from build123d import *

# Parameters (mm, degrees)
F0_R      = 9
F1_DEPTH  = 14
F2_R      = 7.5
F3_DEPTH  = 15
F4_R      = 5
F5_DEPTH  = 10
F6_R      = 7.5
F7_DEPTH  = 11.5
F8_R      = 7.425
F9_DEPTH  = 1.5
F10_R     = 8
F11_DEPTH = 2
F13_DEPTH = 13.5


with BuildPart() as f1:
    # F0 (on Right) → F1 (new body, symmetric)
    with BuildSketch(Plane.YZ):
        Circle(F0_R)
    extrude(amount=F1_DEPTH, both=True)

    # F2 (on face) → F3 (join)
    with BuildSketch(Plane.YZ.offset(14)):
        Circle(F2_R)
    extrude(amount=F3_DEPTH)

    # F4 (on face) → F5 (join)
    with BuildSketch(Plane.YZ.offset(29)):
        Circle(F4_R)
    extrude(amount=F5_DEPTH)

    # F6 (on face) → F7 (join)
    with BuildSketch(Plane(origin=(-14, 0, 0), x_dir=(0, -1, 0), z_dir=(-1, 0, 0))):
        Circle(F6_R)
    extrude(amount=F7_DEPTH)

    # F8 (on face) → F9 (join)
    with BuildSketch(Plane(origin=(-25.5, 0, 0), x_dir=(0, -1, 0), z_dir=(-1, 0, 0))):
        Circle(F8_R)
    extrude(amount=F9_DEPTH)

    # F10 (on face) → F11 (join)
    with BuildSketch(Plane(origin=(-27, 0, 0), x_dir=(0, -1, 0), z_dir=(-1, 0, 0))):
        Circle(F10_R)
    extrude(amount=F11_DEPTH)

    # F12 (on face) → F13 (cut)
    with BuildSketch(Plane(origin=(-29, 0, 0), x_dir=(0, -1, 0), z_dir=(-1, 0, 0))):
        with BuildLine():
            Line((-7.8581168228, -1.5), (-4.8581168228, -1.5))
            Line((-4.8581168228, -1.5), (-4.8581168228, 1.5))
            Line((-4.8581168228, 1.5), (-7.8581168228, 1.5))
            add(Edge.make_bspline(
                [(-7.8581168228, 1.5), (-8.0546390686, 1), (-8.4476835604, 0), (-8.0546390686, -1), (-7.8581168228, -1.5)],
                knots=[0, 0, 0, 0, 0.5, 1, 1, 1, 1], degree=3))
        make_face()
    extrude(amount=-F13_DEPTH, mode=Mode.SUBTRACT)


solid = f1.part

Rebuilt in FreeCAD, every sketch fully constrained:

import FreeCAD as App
import Part
import Sketcher

V = App.Vector
Q = App.Units.Quantity

doc = App.newDocument("Part")
params = doc.addObject("Spreadsheet::Sheet", "Params")
for row, (alias, value) in enumerate([
    ("sketch1_diameter", "18 mm"),
    ("pad1_length", "28 mm"),
    ("sketch2_diameter", "15 mm"),
    ("pad2_length", "15 mm"),
    ("sketch3_diameter", "10 mm"),
    ("pad3_length", "10 mm"),
    ("sketch4_diameter", "15 mm"),
    ("pad4_length", "11.5 mm"),
    ("sketch5_diameter", "14.85 mm"),
    ("pad5_length", "1.5 mm"),
    ("sketch6_diameter", "16 mm"),
    ("pad6_length", "2 mm"),
    ("sketch7_width", "3 mm"),
    ("pocket1_length", "13.5 mm"),
], start=1):
    params.set(f"A{row}", alias)
    params.set(f"B{row}", "=" + value)
    params.setAlias(f"B{row}", alias)

body = doc.addObject("PartDesign::Body", "Body")

# Sketch on YZ plane
sketch1 = doc.addObject("Sketcher::SketchObject", "Sketch")
body.addObject(sketch1)
sketch1.AttachmentSupport = (doc.YZ_Plane, [""])
sketch1.MapMode = "FlatFace"
sketch1.addGeometry(Part.Circle(V(0, 0, 0), V(0, 0, 1), 9), False)
sketch1.addConstraint(Sketcher.Constraint("Coincident", 0, 3, -1, 1))
sketch1.addConstraint(Sketcher.Constraint("Diameter", 0, Q("18 mm")))
sketch1.setExpression("Constraints[1]", "Params.sketch1_diameter")
pad1 = doc.addObject("PartDesign::Pad", "Pad")
body.addObject(pad1)
pad1.Profile = sketch1
pad1.setExpression("Length", "Params.pad1_length")
pad1.Midplane = True

# Sketch on YZ plane
sketch2 = doc.addObject("Sketcher::SketchObject", "Sketch001")
body.addObject(sketch2)
sketch2.AttachmentSupport = (doc.YZ_Plane, [""])
sketch2.MapMode = "FlatFace"
sketch2.AttachmentOffset = App.Placement(V(0, 0, 14), App.Rotation())
sketch2.addGeometry(Part.Circle(V(0, 0, 0), V(0, 0, 1), 7.5), False)
sketch2.addConstraint(Sketcher.Constraint("Coincident", 0, 3, -1, 1))
sketch2.addConstraint(Sketcher.Constraint("Diameter", 0, Q("15 mm")))
sketch2.setExpression("Constraints[1]", "Params.sketch2_diameter")
pad2 = doc.addObject("PartDesign::Pad", "Pad001")
body.addObject(pad2)
pad2.Profile = sketch2
pad2.setExpression("Length", "Params.pad2_length")

# Sketch on YZ plane
sketch3 = doc.addObject("Sketcher::SketchObject", "Sketch002")
body.addObject(sketch3)
sketch3.AttachmentSupport = (doc.YZ_Plane, [""])
sketch3.MapMode = "FlatFace"
sketch3.AttachmentOffset = App.Placement(V(0, 0, 29), App.Rotation())
sketch3.addGeometry(Part.Circle(V(0, 0, 0), V(0, 0, 1), 5), False)
sketch3.addConstraint(Sketcher.Constraint("Coincident", 0, 3, -1, 1))
sketch3.addConstraint(Sketcher.Constraint("Diameter", 0, Q("10 mm")))
sketch3.setExpression("Constraints[1]", "Params.sketch3_diameter")
pad3 = doc.addObject("PartDesign::Pad", "Pad002")
body.addObject(pad3)
pad3.Profile = sketch3
pad3.setExpression("Length", "Params.pad3_length")

# Sketch on YZ plane
sketch4 = doc.addObject("Sketcher::SketchObject", "Sketch003")
body.addObject(sketch4)
sketch4.AttachmentSupport = (doc.YZ_Plane, [""])
sketch4.MapMode = "FlatFace"
sketch4.AttachmentOffset = App.Placement(V(0, 0, -14), App.Rotation())
sketch4.addGeometry(Part.Circle(V(0, 0, 0), V(0, 0, 1), 7.5), False)
sketch4.addConstraint(Sketcher.Constraint("Coincident", 0, 3, -1, 1))
sketch4.addConstraint(Sketcher.Constraint("Diameter", 0, Q("15 mm")))
sketch4.setExpression("Constraints[1]", "Params.sketch4_diameter")
pad4 = doc.addObject("PartDesign::Pad", "Pad003")
body.addObject(pad4)
pad4.Profile = sketch4
pad4.setExpression("Length", "Params.pad4_length")
pad4.Reversed = True

# Sketch on YZ plane
sketch5 = doc.addObject("Sketcher::SketchObject", "Sketch004")
body.addObject(sketch5)
sketch5.AttachmentSupport = (doc.YZ_Plane, [""])
sketch5.MapMode = "FlatFace"
sketch5.AttachmentOffset = App.Placement(V(0, 0, -25.5), App.Rotation())
sketch5.addGeometry(Part.Circle(V(0, 0, 0), V(0, 0, 1), 7.425), False)
sketch5.addConstraint(Sketcher.Constraint("Coincident", 0, 3, -1, 1))
sketch5.addConstraint(Sketcher.Constraint("Diameter", 0, Q("14.85 mm")))
sketch5.setExpression("Constraints[1]", "Params.sketch5_diameter")
pad5 = doc.addObject("PartDesign::Pad", "Pad004")
body.addObject(pad5)
pad5.Profile = sketch5
pad5.setExpression("Length", "Params.pad5_length")
pad5.Reversed = True

# Sketch on YZ plane
sketch6 = doc.addObject("Sketcher::SketchObject", "Sketch005")
body.addObject(sketch6)
sketch6.AttachmentSupport = (doc.YZ_Plane, [""])
sketch6.MapMode = "FlatFace"
sketch6.AttachmentOffset = App.Placement(V(0, 0, -27), App.Rotation())
sketch6.addGeometry(Part.Circle(V(0, 0, 0), V(0, 0, 1), 8), False)
sketch6.addConstraint(Sketcher.Constraint("Coincident", 0, 3, -1, 1))
sketch6.addConstraint(Sketcher.Constraint("Diameter", 0, Q("16 mm")))
sketch6.setExpression("Constraints[1]", "Params.sketch6_diameter")
pad6 = doc.addObject("PartDesign::Pad", "Pad005")
body.addObject(pad6)
pad6.Profile = sketch6
pad6.setExpression("Length", "Params.pad6_length")
pad6.Reversed = True

# Sketch on YZ plane
sketch7 = doc.addObject("Sketcher::SketchObject", "Sketch006")
body.addObject(sketch7)
sketch7.AttachmentSupport = (doc.YZ_Plane, [""])
sketch7.MapMode = "FlatFace"
sketch7.AttachmentOffset = App.Placement(V(0, 0, -29), App.Rotation())
sketch7.addGeometry(Part.LineSegment(V(7.858117, -1.5, 0), V(4.858117, -1.5, 0)), False)
sketch7.addGeometry(Part.LineSegment(V(4.858117, -1.5, 0), V(4.858117, 1.5, 0)), False)
sketch7.addGeometry(Part.LineSegment(V(4.858117, 1.5, 0), V(7.858117, 1.5, 0)), False)
sketch7.addGeometry(Part.BSplineCurve([V(7.858117, 1.5, 0), V(8.054639, 1, 0), V(8.447684, 0, 0), V(8.054639, -1, 0), V(7.858117, -1.5, 0)], [4, 1, 4], [0, 0.5, 1], False, 3, [1, 1, 1, 1, 1], False), False)
sketch7.addConstraint(Sketcher.Constraint("Block", 3))
sketch7.addConstraint(Sketcher.Constraint("Coincident", 0, 2, 1, 1))
sketch7.addConstraint(Sketcher.Constraint("Coincident", 1, 2, 2, 1))
sketch7.addConstraint(Sketcher.Constraint("Coincident", 2, 2, 3, 1))
sketch7.addConstraint(Sketcher.Constraint("Coincident", 3, 2, 0, 1))
sketch7.addConstraint(Sketcher.Constraint("Horizontal", 0))
sketch7.addConstraint(Sketcher.Constraint("Vertical", 1))
sketch7.addConstraint(Sketcher.Constraint("Horizontal", 2))
sketch7.addConstraint(Sketcher.Constraint("DistanceX", 0, 2, 0, 1, Q("3 mm")))
sketch7.setExpression("Constraints[8]", "Params.sketch7_width")
pocket1 = doc.addObject("PartDesign::Pocket", "Pocket")
body.addObject(pocket1)
pocket1.Profile = sketch7
pocket1.setExpression("Length", "Params.pocket1_length")
pocket1.Reversed = True

doc.recompute()
